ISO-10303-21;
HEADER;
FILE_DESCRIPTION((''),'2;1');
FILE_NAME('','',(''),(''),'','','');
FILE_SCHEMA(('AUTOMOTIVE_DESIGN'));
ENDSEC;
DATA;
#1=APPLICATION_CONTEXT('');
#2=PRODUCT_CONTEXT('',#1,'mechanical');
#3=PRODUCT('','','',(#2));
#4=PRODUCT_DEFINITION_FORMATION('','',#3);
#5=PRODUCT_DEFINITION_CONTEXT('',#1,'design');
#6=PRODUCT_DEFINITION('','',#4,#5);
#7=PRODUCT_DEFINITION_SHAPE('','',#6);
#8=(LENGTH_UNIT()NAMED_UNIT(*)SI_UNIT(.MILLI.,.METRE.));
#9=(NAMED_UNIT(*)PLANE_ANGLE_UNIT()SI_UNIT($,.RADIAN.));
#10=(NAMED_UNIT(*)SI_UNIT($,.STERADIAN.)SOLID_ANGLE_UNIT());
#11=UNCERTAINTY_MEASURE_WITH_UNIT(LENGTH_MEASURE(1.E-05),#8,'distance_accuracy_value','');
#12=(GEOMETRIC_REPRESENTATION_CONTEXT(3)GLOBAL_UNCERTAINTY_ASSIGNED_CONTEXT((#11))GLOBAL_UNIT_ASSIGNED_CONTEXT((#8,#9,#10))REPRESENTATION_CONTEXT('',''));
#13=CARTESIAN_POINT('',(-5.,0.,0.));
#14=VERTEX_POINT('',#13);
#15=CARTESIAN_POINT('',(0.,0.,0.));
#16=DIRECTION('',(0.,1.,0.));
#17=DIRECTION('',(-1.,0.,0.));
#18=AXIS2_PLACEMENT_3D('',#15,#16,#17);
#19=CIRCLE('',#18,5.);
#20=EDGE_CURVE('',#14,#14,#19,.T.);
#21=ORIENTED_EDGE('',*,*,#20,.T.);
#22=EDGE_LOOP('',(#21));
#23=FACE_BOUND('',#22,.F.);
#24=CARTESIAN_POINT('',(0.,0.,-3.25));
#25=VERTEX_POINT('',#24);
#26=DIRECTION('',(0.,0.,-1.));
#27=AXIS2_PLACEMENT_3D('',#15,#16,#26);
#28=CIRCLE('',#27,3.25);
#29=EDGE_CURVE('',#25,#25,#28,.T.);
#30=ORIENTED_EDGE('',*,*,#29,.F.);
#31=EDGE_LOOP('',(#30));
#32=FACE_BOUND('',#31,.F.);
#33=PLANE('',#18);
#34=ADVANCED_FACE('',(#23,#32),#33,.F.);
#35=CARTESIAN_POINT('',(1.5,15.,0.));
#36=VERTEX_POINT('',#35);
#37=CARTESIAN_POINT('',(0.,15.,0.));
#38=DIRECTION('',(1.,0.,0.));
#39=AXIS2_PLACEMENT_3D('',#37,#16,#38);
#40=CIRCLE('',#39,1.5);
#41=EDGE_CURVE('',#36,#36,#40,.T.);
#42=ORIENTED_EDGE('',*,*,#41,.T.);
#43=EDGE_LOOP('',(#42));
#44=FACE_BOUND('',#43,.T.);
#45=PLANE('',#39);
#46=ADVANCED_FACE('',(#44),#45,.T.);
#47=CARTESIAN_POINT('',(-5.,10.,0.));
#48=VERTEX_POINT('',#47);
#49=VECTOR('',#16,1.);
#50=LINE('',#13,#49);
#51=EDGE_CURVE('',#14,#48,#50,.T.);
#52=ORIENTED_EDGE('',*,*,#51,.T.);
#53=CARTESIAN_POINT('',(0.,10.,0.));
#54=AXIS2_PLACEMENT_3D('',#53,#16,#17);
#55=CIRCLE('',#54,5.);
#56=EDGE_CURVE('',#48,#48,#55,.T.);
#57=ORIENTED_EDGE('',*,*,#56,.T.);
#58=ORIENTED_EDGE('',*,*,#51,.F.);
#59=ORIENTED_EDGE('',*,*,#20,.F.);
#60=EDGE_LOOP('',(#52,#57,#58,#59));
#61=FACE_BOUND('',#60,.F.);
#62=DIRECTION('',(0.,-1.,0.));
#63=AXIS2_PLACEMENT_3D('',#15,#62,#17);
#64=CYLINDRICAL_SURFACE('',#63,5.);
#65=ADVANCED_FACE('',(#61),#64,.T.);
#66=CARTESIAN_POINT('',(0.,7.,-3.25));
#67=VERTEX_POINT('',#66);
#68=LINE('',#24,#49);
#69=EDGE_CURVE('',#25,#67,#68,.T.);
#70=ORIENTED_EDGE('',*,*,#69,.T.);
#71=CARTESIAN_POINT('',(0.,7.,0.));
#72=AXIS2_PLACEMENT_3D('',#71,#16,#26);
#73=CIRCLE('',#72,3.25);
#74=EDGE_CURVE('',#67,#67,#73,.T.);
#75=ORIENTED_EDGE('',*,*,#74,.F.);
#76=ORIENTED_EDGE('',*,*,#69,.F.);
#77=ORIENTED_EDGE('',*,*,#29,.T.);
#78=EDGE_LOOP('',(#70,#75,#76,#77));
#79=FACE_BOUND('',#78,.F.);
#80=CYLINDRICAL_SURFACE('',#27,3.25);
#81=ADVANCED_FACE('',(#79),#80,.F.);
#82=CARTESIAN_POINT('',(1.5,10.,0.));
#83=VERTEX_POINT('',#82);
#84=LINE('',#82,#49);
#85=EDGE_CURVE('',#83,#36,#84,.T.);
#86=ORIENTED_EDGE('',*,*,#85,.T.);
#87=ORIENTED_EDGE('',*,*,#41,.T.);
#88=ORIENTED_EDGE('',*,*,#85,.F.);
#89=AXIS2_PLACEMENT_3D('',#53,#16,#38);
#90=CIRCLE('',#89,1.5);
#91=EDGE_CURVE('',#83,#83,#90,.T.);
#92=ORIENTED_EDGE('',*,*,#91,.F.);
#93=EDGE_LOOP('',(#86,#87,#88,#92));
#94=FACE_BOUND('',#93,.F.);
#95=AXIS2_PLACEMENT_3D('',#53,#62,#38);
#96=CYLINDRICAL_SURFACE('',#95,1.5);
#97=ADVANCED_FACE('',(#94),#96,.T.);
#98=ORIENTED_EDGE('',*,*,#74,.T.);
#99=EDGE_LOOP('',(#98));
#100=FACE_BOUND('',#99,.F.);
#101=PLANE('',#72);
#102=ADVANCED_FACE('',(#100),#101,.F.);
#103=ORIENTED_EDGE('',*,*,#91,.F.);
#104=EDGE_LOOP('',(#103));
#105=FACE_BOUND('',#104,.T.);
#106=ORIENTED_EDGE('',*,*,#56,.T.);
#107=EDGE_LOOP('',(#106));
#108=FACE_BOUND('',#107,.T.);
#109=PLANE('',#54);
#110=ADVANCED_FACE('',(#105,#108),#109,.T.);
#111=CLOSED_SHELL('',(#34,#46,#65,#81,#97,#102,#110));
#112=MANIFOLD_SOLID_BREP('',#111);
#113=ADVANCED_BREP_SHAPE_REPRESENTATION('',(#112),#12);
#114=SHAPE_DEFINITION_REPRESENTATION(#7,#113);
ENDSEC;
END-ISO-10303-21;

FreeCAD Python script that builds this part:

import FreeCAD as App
import Part
import Sketcher

V = App.Vector

doc = App.newDocument("Part")
params = doc.addObject("Spreadsheet::Sheet", "Params")
for row, (alias, value) in enumerate([
    ("sketch1_diameter", "10 mm"),
    ("pad1_length", "10 mm"),
    ("sketch2_diameter", "3 mm"),
    ("pad2_length", "5 mm"),
    ("sketch3_diameter", "6.5 mm"),
    ("hole_diameter", "6.5 mm"),
    ("hole_depth", "7 mm"),
], start=1):
    params.set(f"A{row}", alias)
    params.set(f"B{row}", "=" + value)
    params.setAlias(f"B{row}", alias)

body = doc.addObject("PartDesign::Body", "Body")

# Sketch on XZ plane
sketch1 = body.newObject("Sketcher::SketchObject", "Sketch")
sketch1.AttachmentSupport = (doc.getObject("XZ_Plane"), [""])
sketch1.MapMode = "FlatFace"
sketch1.addGeometry(Part.Circle(V(0, 0, 0), V(0, 0, 1), 5), False)
sketch1.addConstraint([
    Sketcher.Constraint("Coincident", 0, 3, -1, 1),
    Sketcher.Constraint("Diameter", 0, 10.0),
])
sketch1.setExpression("Constraints[1]", "Params.sketch1_diameter")
pad1 = body.newObject("PartDesign::Pad", "Pad")
pad1.Profile = sketch1
pad1.setExpression("Length", "Params.pad1_length")
pad1.Reversed = True

# Sketch on XZ plane
sketch2 = body.newObject("Sketcher::SketchObject", "Sketch001")
sketch2.AttachmentSupport = (doc.getObject("XZ_Plane"), [""])
sketch2.MapMode = "FlatFace"
sketch2.AttachmentOffset = App.Placement(V(0, 0, -10), App.Rotation())
sketch2.addGeometry(Part.Circle(V(0, 0, 0), V(0, 0, 1), 1.5), False)
sketch2.addConstraint([
    Sketcher.Constraint("Coincident", 0, 3, -1, 1),
    Sketcher.Constraint("Diameter", 0, 3.0),
])
sketch2.setExpression("Constraints[1]", "Params.sketch2_diameter")
pad2 = body.newObject("PartDesign::Pad", "Pad001")
pad2.Profile = sketch2
pad2.setExpression("Length", "Params.pad2_length")
pad2.Reversed = True

# Sketch on XZ plane
sketch3 = body.newObject("Sketcher::SketchObject", "Sketch002")
sketch3.AttachmentSupport = (doc.getObject("XZ_Plane"), [""])
sketch3.MapMode = "FlatFace"
sketch3.addGeometry(Part.Circle(V(0, 0, 0), V(0, 0, 1), 3.25), False)
sketch3.addConstraint([
    Sketcher.Constraint("Coincident", 0, 3, -1, 1),
    Sketcher.Constraint("Diameter", 0, 6.5),
])
sketch3.setExpression("Constraints[1]", "Params.sketch3_diameter")
doc.recompute()
hole = body.newObject("PartDesign::Hole", "Hole")
hole.Profile = sketch3
hole.ThreadType = "None"
hole.setExpression("Diameter", "Params.hole_diameter")
hole.DepthType = "Dimension"
hole.setExpression("Depth", "Params.hole_depth")
hole.DrillPoint = "Flat"

doc.recompute()
